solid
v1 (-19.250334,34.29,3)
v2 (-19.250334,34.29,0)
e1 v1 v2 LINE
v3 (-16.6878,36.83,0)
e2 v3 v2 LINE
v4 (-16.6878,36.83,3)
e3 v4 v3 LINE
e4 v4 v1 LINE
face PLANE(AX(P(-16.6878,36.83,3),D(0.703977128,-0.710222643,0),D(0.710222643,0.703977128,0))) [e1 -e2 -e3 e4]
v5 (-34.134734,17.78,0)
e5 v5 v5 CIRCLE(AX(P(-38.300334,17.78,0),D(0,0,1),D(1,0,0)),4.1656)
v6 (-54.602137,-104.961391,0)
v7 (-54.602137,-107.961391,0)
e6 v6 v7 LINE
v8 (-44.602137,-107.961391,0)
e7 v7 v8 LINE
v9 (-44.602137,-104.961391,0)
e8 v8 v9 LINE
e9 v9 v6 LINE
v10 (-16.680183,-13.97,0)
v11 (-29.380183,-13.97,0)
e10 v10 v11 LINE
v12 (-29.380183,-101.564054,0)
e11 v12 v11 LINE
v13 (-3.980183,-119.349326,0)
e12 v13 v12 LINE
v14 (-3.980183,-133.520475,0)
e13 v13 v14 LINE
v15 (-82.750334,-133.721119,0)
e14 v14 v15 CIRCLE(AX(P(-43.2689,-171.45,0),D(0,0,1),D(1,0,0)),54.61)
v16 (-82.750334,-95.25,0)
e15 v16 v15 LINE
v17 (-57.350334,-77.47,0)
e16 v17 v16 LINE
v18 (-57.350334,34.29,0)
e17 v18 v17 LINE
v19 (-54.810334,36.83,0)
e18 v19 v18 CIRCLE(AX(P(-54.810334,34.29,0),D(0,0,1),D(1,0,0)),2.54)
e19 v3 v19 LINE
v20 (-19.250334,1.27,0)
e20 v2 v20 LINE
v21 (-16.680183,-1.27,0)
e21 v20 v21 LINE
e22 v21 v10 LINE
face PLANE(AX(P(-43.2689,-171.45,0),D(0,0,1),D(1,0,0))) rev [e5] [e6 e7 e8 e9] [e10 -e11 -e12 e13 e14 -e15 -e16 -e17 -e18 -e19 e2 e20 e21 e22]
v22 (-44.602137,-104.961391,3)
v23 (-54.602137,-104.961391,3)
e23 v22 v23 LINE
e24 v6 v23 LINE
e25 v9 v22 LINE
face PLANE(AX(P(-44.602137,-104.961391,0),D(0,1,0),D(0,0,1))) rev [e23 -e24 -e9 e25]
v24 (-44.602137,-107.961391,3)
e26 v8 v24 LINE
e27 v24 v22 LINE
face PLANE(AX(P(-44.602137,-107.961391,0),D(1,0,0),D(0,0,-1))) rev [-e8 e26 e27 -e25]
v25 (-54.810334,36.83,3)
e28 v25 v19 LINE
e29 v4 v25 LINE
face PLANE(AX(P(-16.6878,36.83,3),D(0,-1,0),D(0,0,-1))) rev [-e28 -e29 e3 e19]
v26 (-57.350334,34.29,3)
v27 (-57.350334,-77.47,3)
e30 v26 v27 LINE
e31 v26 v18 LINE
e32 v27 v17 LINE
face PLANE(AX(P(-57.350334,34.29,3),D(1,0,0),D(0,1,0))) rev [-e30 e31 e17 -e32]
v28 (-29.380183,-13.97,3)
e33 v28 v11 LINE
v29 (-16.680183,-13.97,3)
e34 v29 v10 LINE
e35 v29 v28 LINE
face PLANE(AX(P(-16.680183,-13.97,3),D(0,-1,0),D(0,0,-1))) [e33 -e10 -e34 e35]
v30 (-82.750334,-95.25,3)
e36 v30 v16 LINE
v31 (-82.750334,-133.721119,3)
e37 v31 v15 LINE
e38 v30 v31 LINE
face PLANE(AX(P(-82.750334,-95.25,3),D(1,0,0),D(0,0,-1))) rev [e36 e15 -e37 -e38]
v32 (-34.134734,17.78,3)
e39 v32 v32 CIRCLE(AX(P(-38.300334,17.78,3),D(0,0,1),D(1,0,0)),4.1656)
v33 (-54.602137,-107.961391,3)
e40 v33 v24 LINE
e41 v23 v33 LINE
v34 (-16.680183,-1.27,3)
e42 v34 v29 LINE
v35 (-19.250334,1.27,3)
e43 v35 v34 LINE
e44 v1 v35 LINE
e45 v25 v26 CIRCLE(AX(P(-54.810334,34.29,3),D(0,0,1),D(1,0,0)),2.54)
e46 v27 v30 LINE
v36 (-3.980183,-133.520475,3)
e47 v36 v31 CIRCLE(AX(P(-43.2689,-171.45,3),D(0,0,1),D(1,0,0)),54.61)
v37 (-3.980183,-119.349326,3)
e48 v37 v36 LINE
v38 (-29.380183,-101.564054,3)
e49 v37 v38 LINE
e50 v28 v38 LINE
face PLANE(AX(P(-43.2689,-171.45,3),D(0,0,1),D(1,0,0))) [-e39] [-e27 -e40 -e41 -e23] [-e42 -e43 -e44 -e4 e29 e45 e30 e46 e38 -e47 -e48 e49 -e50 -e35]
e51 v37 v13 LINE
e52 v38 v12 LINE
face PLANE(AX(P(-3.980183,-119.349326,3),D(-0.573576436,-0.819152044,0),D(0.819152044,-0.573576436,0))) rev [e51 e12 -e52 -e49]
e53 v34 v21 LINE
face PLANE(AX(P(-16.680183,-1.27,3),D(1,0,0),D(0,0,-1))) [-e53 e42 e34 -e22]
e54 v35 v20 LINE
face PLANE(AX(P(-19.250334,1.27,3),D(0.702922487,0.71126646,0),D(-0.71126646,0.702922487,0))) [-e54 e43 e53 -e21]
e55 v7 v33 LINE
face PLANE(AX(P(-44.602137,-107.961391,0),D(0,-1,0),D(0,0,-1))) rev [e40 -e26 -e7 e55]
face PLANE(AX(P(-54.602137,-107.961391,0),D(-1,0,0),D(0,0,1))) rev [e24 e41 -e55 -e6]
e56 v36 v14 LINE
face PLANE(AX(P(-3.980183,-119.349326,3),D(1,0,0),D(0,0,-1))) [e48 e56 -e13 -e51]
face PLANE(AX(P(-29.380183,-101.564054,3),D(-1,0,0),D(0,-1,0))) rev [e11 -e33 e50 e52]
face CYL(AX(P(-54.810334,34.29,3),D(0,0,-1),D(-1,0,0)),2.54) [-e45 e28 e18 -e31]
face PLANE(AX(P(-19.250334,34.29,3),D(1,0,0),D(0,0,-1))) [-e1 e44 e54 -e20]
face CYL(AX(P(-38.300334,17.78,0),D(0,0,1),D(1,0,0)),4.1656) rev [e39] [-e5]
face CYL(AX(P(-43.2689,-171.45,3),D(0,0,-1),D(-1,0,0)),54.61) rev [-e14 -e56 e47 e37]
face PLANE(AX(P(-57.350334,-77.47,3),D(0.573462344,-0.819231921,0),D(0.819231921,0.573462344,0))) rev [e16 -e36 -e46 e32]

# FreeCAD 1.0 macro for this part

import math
import FreeCAD as App
import Part
import Sketcher

V = App.Vector
Q = App.Units.Quantity


def add_polygon(sketch, points):
    """Adds a closed chain of lines whose ends are joined by coincident constraints."""
    first, n = sketch.GeometryCount, len(points)
    for a, b in zip(points, points[1:] + points[:1]):
        sketch.addGeometry(Part.LineSegment(App.Vector(*a, 0), App.Vector(*b, 0)), False)
    for i in range(n):
        sketch.addConstraint(Sketcher.Constraint("Coincident", first + i, 2, first + (i + 1) % n, 1))

doc = App.newDocument("Part")
body = doc.addObject("PartDesign::Body", "Body")

# Sketch on XY plane
sketch1 = body.newObject("Sketcher::SketchObject", "Sketch")
sketch1.AttachmentSupport = (doc.getObject("XY_Plane"), [""])
sketch1.MapMode = "FlatFace"
sketch1.addGeometry([
    Part.LineSegment(V(-16.6878, 36.83, 0), V(-54.810334, 36.83, 0)),  # 0
    Part.ArcOfCircle(Part.Circle(V(-54.810334, 34.29, 0), V(0, 0, 1), 2.54), math.radians(90), math.radians(180)),  # 1
    Part.LineSegment(V(-57.350334, 34.29, 0), V(-57.350334, -77.47, 0)),  # 2
    Part.LineSegment(V(-57.350334, -77.47, 0), V(-82.750334, -95.25, 0)),  # 3
    Part.LineSegment(V(-82.750334, -95.25, 0), V(-82.750334, -133.721119, 0)),  # 4
    Part.ArcOfCircle(Part.Circle(V(-43.2689, -171.45, 0), V(0, 0, 1), 54.61), math.radians(43.991587), math.radians(136.300301)),  # 5
    Part.LineSegment(V(-3.980183, -133.520475, 0), V(-3.980183, -119.349326, 0)),  # 6
    Part.LineSegment(V(-3.980183, -119.349326, 0), V(-29.380183, -101.564054, 0)),  # 7
    Part.LineSegment(V(-29.380183, -101.564054, 0), V(-29.380183, -13.97, 0)),  # 8
    Part.LineSegment(V(-29.380183, -13.97, 0), V(-16.680183, -13.97, 0)),  # 9
    Part.LineSegment(V(-16.680183, -13.97, 0), V(-16.680183, -1.27, 0)),  # 10
    Part.LineSegment(V(-16.680183, -1.27, 0), V(-19.250334, 1.27, 0)),  # 11
    Part.LineSegment(V(-19.250334, 1.27, 0), V(-19.250334, 34.29, 0)),  # 12
    Part.LineSegment(V(-19.250334, 34.29, 0), V(-16.6878, 36.83, 0)),  # 13
], False)
sketch1.addConstraint([
    Sketcher.Constraint("Tangent", 0, 2, 1, 1),
    Sketcher.Constraint("Tangent", 1, 2, 2, 1),
    Sketcher.Constraint("Coincident", 2, 2, 3, 1),
    Sketcher.Constraint("Coincident", 3, 2, 4, 1),
    Sketcher.Constraint("Coincident", 4, 2, 5, 2),
    Sketcher.Constraint("Coincident", 5, 1, 6, 1),
    Sketcher.Constraint("Coincident", 6, 2, 7, 1),
    Sketcher.Constraint("Coincident", 7, 2, 8, 1),
    Sketcher.Constraint("Coincident", 8, 2, 9, 1),
    Sketcher.Constraint("Coincident", 9, 2, 10, 1),
    Sketcher.Constraint("Coincident", 10, 2, 11, 1),
    Sketcher.Constraint("Coincident", 11, 2, 12, 1),
    Sketcher.Constraint("Coincident", 12, 2, 13, 1),
    Sketcher.Constraint("Coincident", 13, 2, 0, 1),
    Sketcher.Constraint("Horizontal", 0),
    Sketcher.Constraint("Vertical", 2),
    Sketcher.Constraint("Vertical", 4),
    Sketcher.Constraint("Vertical", 6),
    Sketcher.Constraint("Vertical", 8),
    Sketcher.Constraint("Horizontal", 9),
    Sketcher.Constraint("Vertical", 10),
    Sketcher.Constraint("Vertical", 12),
    Sketcher.Constraint("Horizontal", 1, 2, 12, 2),
    Sketcher.Constraint("Equal", 9, 10),
    Sketcher.Constraint("Radius", 1, Q("0.1 in")),
    Sketcher.Constraint("Radius", 5, Q("2.15 in")),
    Sketcher.Constraint("DistanceX", 9, 1, 9, 2, Q("0.5 in")),
    Sketcher.Constraint("DistanceY", 2, 2, 2, 1, Q("4.4 in")),
    Sketcher.Constraint("DistanceY", 12, 1, 12, 2, Q("1.3 in")),
    Sketcher.Constraint("Angle", 7, Q("145 deg")),
    Sketcher.Constraint("DistanceX", 3, 2, 2, 2, Q("1 in")),
    Sketcher.Constraint("DistanceY", 5, 3, 3, 2, Q("3 in")),
    Sketcher.Constraint("DistanceX", 7, 2, 6, 2, Q("1 in")),
    Sketcher.Constraint("DistanceY", 8, 2, 0, 2, Q("2 in")),
    Sketcher.Constraint("DistanceY", 5, 3, 1, 3, Q("8.1 in")),
    Sketcher.Constraint("DistanceX", 1, 3, 11, 2, Q("1.4 in")),
    Sketcher.Constraint("DistanceY", -1, 1, 1, 3, Q("1.35 in")),
    Sketcher.Constraint("DistanceX", 13, 2, -1, 1, Q("0.657 in")),
    Sketcher.Constraint("DistanceX", 5, 3, -1, 1, Q("1.7035 in")),
    Sketcher.Constraint("DistanceX", 5, 1, -1, 1, Q("0.1567001 in")),
    Sketcher.Constraint("DistanceY", 4, 2, 4, 1, Q("38.471119 mm")),
    Sketcher.Constraint("DistanceY", 6, 1, 6, 2, Q("14.171149 mm")),
])
pad1 = body.newObject("PartDesign::Pad", "Pad")
pad1.Profile = sketch1
pad1.Length = 3

# Sketch on XY plane
sketch2 = body.newObject("Sketcher::SketchObject", "Sketch001")
sketch2.AttachmentSupport = (doc.getObject("XY_Plane"), [""])
sketch2.MapMode = "FlatFace"
sketch2.AttachmentOffset = App.Placement(V(0, 0, 3), App.Rotation())
sketch2.addGeometry(Part.Circle(V(-38.300334, 17.78, 0), V(0, 0, 1), 4.1656), False)
sketch2.addConstraint([
    Sketcher.Constraint("Diameter", 0, Q("0.328 in")),
    Sketcher.Constraint("DistanceY", -1, 1, 0, 3, Q("0.7 in")),
    Sketcher.Constraint("DistanceX", 0, 3, -1, 1, Q("38.300334 mm")),
])
pocket1 = body.newObject("PartDesign::Pocket", "Pocket")
pocket1.Profile = sketch2
pocket1.Type = "ThroughAll"

# Sketch on XY plane
sketch3 = body.newObject("Sketcher::SketchObject", "Sketch002")
sketch3.AttachmentSupport = (doc.getObject("XY_Plane"), [""])
sketch3.MapMode = "FlatFace"
sketch3.AttachmentOffset = App.Placement(V(0, 0, 3), App.Rotation())
add_polygon(sketch3, [(-54.602137, -104.961391), (-54.602137, -107.961391), (-44.602137, -107.961391), (-44.602137, -104.961391)])  # lines 0-3
sketch3.addConstraint([
    Sketcher.Constraint("Vertical", 0),
    Sketcher.Constraint("Horizontal", 1),
    Sketcher.Constraint("Vertical", 2),
    Sketcher.Constraint("Horizontal", 3),
    Sketcher.Constraint("DistanceX", 1, 1, 1, 2, Q("10 mm")),
    Sketcher.Constraint("DistanceY", 0, 2, 0, 1, Q("3 mm")),
    Sketcher.Constraint("DistanceY", 0, 2, -1, 1, Q("107.961391 mm")),
    Sketcher.Constraint("DistanceX", 0, 2, -1, 1, Q("54.602137 mm")),
])
pocket2 = body.newObject("PartDesign::Pocket", "Pocket001")
pocket2.Profile = sketch3
pocket2.Type = "ThroughAll"

doc.recompute()
